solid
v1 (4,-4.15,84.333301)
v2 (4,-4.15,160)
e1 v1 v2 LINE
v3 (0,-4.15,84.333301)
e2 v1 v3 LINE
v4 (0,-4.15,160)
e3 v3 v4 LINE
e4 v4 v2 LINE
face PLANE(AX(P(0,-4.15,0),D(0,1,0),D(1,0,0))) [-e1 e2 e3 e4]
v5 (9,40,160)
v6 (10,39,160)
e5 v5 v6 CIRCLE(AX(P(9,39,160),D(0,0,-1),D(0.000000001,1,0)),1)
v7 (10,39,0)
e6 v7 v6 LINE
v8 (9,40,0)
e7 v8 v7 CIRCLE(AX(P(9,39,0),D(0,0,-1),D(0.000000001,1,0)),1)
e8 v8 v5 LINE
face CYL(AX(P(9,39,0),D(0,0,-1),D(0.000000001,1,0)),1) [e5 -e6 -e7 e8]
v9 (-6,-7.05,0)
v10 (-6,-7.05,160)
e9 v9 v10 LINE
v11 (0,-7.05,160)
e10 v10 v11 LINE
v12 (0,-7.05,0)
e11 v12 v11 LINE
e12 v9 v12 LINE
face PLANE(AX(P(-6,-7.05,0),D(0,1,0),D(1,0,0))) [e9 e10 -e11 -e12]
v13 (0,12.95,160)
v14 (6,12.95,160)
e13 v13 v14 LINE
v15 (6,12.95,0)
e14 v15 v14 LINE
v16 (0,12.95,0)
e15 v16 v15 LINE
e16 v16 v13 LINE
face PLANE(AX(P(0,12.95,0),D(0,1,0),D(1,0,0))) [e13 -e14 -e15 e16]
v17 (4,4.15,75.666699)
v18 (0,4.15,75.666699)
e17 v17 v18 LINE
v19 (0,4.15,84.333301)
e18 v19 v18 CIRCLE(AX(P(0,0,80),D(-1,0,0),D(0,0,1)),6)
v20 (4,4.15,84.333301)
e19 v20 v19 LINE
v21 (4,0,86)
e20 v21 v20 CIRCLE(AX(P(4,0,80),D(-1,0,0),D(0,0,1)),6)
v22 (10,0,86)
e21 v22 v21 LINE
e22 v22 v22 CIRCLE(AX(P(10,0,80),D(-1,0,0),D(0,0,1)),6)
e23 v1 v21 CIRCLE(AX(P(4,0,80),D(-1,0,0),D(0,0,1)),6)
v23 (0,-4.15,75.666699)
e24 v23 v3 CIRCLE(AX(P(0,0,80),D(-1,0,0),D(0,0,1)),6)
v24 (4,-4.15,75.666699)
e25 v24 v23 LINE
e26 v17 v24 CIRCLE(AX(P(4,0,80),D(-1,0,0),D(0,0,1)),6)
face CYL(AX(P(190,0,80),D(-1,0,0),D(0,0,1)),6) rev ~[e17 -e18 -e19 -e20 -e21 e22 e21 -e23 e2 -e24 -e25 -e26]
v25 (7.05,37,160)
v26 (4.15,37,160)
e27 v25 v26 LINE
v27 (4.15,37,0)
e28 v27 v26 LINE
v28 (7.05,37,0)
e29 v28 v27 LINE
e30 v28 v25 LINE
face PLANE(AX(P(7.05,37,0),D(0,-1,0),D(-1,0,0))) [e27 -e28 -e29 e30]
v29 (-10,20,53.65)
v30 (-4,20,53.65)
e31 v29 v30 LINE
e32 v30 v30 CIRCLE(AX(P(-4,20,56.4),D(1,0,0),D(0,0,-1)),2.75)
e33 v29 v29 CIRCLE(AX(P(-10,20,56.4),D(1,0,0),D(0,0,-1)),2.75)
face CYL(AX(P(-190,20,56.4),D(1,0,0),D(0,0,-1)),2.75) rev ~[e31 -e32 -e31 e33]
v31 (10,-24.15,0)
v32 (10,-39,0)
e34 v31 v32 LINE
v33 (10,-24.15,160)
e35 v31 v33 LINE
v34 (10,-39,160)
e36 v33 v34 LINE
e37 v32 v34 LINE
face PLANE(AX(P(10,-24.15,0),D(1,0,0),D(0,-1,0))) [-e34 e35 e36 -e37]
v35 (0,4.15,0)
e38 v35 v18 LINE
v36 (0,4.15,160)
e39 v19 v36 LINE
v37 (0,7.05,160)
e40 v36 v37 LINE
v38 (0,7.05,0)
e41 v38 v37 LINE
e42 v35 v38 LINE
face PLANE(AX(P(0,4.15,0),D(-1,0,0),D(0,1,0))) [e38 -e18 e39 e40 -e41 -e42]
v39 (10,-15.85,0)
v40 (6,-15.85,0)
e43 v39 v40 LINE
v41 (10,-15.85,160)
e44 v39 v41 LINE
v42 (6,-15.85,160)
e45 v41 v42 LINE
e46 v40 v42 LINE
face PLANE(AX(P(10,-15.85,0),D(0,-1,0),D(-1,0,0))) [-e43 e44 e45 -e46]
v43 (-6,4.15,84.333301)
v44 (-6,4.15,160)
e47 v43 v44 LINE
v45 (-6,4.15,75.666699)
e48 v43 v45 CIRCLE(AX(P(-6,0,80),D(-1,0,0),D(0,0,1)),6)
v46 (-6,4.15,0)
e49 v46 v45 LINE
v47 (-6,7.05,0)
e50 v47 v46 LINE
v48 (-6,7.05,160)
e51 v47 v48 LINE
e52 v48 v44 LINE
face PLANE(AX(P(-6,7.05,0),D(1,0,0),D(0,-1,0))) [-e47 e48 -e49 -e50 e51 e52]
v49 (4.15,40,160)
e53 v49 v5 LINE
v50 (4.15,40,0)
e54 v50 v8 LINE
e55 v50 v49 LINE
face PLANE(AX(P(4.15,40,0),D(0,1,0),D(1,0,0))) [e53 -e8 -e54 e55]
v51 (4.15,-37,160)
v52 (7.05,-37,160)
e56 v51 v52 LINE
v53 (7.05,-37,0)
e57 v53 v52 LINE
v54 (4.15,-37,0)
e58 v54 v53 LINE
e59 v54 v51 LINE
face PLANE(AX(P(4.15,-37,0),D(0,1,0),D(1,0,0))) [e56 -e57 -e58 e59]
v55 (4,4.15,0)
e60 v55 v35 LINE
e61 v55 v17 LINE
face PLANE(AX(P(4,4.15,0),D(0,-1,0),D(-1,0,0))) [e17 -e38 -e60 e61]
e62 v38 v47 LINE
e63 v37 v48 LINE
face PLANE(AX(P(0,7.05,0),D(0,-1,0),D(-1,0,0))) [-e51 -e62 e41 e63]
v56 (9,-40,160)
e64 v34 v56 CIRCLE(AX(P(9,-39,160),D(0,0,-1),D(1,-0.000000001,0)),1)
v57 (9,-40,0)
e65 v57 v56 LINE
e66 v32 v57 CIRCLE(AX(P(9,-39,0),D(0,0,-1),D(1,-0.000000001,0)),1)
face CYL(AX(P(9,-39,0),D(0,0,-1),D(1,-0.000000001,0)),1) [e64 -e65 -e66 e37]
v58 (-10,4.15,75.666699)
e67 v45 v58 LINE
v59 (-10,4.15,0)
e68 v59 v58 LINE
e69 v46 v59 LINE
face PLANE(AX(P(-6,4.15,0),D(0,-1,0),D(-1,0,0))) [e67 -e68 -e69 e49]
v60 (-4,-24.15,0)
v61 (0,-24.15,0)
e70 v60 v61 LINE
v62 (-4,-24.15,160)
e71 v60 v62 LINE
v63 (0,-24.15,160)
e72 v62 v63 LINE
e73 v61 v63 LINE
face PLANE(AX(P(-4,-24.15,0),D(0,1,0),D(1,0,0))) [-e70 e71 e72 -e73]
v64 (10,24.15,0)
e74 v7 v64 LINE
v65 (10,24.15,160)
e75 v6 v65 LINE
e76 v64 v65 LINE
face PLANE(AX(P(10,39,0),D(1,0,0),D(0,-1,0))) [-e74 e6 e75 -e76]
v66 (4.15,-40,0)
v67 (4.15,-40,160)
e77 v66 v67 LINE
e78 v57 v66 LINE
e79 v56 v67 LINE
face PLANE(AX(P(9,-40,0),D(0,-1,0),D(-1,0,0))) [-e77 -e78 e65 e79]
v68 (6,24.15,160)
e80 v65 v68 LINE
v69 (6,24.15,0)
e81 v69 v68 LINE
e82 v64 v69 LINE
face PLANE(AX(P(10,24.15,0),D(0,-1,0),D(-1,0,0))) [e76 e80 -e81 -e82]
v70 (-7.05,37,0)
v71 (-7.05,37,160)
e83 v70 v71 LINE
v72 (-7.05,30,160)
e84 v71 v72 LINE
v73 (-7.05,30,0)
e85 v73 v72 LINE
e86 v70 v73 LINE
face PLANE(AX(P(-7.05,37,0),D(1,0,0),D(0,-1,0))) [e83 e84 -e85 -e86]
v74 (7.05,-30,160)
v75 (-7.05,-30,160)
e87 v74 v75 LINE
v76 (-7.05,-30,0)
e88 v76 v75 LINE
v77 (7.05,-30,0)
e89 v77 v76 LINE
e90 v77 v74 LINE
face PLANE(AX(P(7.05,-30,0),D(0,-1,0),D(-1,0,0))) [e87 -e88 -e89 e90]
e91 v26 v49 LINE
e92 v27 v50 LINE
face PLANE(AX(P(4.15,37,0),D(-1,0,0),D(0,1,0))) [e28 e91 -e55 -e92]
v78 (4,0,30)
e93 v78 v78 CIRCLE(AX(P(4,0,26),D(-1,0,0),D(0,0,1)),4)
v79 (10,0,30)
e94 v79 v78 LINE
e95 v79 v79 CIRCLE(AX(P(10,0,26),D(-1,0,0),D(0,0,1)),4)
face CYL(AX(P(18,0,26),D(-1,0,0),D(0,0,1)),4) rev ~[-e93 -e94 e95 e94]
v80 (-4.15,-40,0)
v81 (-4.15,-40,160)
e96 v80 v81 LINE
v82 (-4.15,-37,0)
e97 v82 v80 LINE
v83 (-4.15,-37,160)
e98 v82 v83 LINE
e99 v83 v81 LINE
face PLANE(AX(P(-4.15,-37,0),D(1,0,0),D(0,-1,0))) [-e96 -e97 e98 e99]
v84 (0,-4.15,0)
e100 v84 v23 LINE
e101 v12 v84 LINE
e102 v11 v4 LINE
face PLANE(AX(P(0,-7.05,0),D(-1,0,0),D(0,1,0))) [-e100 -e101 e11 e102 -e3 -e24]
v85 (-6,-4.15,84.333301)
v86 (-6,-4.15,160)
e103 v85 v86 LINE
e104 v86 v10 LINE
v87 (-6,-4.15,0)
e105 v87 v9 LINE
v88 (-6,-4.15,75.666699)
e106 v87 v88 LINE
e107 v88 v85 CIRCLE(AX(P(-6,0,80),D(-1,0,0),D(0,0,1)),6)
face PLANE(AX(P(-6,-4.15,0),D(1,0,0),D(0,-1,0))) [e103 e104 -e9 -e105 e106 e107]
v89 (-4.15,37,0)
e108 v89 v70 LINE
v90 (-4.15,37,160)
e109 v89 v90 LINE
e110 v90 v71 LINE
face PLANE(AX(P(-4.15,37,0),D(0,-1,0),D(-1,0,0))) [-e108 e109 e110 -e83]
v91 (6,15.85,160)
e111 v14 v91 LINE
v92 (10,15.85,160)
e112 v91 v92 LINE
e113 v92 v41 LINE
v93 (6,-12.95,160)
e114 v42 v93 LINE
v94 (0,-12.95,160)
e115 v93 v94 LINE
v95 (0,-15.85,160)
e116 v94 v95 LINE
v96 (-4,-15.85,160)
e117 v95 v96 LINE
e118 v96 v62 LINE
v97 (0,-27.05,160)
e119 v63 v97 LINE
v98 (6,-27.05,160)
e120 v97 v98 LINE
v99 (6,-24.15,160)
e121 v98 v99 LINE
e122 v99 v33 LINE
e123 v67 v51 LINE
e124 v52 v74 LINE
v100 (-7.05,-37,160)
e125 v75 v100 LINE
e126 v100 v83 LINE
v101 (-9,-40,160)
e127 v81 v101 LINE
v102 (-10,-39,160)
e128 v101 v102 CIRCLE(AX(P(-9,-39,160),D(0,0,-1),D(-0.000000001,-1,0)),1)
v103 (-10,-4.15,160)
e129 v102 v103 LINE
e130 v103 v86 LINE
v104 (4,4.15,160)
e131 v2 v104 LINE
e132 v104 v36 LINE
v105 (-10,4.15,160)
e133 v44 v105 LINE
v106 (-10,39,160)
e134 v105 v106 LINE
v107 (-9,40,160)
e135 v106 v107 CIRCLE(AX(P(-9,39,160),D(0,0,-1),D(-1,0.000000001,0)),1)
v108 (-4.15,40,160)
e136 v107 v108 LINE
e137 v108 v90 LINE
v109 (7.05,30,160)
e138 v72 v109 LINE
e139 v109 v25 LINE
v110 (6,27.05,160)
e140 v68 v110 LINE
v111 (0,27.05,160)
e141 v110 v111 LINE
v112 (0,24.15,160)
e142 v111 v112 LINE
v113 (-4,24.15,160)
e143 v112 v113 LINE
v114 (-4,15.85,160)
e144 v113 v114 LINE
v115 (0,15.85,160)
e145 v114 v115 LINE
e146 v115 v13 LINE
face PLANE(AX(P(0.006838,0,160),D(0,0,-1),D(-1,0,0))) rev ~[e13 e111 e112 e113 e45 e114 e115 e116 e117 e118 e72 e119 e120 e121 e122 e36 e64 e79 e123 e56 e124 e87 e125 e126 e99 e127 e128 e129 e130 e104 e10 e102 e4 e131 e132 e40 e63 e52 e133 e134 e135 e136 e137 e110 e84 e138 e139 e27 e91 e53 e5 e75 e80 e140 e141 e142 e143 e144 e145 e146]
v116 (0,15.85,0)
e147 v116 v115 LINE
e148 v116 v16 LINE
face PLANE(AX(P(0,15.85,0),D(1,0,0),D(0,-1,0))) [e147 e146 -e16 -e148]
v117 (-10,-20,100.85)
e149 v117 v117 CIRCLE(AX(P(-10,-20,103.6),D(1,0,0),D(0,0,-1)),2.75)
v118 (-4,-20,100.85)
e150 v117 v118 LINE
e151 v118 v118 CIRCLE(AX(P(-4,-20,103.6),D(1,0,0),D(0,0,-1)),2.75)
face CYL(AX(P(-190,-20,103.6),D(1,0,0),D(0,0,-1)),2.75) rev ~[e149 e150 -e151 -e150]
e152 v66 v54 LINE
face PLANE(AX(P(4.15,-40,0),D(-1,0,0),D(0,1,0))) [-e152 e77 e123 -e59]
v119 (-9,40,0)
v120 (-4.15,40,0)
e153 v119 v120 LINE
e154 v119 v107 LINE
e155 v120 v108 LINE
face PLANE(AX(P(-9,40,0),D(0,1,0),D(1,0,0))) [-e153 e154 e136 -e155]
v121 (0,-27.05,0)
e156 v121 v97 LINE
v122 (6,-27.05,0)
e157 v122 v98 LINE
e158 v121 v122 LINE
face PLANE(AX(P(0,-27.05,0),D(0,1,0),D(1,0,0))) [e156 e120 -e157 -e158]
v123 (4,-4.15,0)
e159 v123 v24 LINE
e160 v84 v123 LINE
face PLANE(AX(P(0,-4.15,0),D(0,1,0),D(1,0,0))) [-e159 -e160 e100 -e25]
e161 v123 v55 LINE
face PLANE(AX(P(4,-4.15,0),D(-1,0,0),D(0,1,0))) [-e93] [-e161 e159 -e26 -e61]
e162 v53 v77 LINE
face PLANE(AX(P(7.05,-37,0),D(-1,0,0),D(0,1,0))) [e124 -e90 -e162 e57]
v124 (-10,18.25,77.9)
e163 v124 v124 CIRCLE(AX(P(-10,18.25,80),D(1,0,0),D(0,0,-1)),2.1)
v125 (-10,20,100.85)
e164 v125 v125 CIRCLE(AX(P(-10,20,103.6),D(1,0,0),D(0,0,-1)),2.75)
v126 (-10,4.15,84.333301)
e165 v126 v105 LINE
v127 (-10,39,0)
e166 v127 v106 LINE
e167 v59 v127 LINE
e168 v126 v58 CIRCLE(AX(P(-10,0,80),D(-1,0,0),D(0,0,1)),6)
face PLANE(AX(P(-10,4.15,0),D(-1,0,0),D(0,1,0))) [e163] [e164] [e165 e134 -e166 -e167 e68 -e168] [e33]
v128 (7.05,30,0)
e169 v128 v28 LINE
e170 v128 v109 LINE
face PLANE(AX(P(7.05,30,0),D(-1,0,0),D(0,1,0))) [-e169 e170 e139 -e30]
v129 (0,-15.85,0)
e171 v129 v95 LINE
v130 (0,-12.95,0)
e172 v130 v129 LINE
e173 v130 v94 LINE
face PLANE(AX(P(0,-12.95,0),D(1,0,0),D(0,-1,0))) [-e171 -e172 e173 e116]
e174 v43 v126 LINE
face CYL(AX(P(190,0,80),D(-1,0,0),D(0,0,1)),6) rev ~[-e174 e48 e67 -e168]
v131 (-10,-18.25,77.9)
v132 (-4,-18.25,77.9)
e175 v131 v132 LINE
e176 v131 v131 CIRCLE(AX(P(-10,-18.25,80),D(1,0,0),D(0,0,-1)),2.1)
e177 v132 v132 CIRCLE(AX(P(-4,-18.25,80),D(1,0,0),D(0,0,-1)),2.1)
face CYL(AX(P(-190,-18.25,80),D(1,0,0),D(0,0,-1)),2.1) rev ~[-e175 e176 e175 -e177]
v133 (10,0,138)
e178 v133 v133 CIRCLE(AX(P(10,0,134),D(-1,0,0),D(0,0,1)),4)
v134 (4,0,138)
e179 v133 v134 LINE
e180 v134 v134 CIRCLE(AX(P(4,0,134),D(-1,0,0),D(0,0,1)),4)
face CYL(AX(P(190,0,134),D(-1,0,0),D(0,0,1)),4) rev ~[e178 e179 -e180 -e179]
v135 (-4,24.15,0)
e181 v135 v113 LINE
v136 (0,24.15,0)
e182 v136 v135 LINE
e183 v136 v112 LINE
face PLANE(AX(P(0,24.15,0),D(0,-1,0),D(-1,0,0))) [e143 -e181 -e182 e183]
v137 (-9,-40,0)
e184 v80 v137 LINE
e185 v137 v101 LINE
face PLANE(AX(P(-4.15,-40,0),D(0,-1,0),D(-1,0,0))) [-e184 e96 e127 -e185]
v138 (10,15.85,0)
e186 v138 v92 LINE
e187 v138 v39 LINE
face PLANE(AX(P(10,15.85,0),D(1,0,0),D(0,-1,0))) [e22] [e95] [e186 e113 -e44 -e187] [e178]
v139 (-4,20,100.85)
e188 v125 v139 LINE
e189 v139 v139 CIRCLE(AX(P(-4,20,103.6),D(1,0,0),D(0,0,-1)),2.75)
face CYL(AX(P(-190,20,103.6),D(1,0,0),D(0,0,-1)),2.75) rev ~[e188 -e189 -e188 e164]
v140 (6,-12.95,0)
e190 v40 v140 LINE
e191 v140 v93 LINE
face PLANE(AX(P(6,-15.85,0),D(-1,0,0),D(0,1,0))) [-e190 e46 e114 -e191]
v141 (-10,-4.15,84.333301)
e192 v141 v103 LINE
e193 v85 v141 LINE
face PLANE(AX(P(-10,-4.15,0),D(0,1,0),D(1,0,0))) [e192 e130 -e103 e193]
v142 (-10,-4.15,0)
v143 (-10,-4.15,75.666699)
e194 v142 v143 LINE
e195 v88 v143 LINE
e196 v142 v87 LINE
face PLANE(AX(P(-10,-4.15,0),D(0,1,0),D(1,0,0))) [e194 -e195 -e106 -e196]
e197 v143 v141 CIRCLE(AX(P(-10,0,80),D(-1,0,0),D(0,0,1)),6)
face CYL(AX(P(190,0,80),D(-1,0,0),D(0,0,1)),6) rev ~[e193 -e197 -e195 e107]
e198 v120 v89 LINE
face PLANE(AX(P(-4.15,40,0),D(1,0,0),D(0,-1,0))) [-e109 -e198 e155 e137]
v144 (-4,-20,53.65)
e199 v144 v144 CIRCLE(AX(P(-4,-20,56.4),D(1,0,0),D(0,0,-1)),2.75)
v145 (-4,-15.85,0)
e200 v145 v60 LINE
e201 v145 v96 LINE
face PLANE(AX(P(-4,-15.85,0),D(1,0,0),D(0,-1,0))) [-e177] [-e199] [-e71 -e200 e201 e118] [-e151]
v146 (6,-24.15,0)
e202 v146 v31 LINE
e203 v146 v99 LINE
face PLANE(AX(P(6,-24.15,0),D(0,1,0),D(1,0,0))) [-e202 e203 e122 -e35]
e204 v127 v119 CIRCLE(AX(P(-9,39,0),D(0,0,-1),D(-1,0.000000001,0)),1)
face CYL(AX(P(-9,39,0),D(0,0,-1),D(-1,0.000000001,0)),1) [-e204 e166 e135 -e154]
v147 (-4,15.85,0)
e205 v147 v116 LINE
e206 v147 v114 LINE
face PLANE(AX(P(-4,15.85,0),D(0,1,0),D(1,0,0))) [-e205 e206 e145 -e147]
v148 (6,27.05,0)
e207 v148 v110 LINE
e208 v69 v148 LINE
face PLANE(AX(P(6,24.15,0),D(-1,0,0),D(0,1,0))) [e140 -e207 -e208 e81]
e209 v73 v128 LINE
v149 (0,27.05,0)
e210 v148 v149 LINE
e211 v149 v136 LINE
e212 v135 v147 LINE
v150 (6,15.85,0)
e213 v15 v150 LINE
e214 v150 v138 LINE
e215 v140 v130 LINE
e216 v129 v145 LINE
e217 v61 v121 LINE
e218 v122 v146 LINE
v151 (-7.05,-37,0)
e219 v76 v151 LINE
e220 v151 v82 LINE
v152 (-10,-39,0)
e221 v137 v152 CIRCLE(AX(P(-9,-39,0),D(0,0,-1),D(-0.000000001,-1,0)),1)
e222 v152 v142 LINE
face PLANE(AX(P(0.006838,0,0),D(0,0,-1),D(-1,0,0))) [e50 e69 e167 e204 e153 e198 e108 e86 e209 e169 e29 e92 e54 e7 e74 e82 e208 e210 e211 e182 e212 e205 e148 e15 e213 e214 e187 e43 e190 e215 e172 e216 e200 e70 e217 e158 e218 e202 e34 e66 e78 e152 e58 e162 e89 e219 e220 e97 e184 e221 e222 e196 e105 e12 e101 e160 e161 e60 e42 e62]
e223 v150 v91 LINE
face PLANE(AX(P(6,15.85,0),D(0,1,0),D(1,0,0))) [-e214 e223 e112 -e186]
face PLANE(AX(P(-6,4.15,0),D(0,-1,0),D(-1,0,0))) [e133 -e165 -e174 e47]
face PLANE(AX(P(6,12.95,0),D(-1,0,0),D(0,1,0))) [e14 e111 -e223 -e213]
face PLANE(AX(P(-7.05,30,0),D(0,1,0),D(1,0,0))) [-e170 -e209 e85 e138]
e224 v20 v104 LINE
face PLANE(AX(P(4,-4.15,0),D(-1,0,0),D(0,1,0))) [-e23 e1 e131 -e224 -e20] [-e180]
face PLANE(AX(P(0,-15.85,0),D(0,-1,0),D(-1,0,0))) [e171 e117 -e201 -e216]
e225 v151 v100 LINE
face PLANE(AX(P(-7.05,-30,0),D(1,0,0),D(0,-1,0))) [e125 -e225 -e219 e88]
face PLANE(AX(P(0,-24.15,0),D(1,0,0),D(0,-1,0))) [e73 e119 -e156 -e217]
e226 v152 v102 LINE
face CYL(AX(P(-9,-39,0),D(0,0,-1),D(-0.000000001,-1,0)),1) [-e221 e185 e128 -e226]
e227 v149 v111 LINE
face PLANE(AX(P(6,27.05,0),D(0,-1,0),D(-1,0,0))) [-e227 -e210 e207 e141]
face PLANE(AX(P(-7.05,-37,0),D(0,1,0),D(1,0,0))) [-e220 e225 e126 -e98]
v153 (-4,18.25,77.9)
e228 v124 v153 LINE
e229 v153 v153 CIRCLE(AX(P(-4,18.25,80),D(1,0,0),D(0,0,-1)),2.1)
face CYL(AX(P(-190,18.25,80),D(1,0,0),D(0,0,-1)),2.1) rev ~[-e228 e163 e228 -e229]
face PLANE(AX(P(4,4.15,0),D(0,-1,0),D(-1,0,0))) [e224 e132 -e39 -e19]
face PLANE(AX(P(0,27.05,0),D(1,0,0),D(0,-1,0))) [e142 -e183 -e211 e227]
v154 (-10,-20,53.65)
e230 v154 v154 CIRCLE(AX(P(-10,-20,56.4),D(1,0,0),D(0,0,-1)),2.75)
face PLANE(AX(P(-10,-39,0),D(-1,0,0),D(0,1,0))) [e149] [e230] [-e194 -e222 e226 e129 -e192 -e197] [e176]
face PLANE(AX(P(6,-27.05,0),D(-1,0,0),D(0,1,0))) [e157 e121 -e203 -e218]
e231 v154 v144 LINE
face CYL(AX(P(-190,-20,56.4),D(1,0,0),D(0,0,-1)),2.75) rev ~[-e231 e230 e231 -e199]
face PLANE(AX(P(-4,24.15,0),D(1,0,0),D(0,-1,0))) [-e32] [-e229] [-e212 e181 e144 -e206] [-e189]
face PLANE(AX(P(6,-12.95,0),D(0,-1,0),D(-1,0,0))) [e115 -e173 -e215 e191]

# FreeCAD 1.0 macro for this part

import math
import FreeCAD as App
import Part
import Sketcher
from FreeCAD import Vector

doc = App.newDocument("Part")
params = doc.addObject("Spreadsheet::Sheet", "Params")
for row, (alias, value) in enumerate([
    ("sketch1_radius", "1 mm"),
    ("sketch1_width", "4 mm"),
    ("sketch1_width2", "6 mm"),
    ("sketch1_height", "3 mm"),
    ("sketch1_height2", "7 mm"),
    ("pad1_length", "160 mm"),
    ("sketch2_diameter", "8 mm"),
    ("hole_diameter", "8 mm"),
    ("sketch3_diameter", "8 mm"),
    ("hole2_diameter", "8 mm"),
    ("hole2_depth", "8 mm"),
    ("sketch4_diameter", "12 mm"),
    ("hole3_diameter", "12 mm"),
    ("sketch5_diameter", "5.5 mm"),
    ("hole4_diameter", "5.5 mm"),
    ("sketch6_diameter", "5.5 mm"),
    ("hole5_diameter", "5.5 mm"),
    ("sketch7_diameter", "5.5 mm"),
    ("hole6_diameter", "5.5 mm"),
    ("sketch8_diameter", "5.5 mm"),
    ("hole7_diameter", "5.5 mm"),
    ("sketch9_diameter", "4.2 mm"),
    ("hole8_diameter", "4.2 mm"),
    ("sketch10_diameter", "4.2 mm"),
    ("hole9_diameter", "4.2 mm"),
], start=1):
    params.set(f"A{row}", alias)
    params.set(f"B{row}", "=" + value)
    params.setAlias(f"B{row}", alias)

body = doc.addObject("PartDesign::Body", "Body")

# Sketch on XY plane
sketch1 = body.newObject("Sketcher::SketchObject", "Sketch")
sketch1.AttachmentSupport = (doc.getObject("XY_Plane"), [""])
sketch1.MapMode = "FlatFace"
sketch1.addGeometry(Part.LineSegment(Vector(-4.2, 40, 0), Vector(-9, 40, 0)), False)
sketch1.addGeometry(Part.ArcOfCircle(Part.Circle(Vector(-9, 39, 0), Vector(0, 0, 1), 1), math.radians(90), math.radians(180)), False)
sketch1.addGeometry(Part.LineSegment(Vector(-10, 39, 0), Vector(-10, 4.2, 0)), False)
sketch1.addGeometry(Part.LineSegment(Vector(-10, 4.2, 0), Vector(-6, 4.2, 0)), False)
sketch1.addGeometry(Part.LineSegment(Vector(-6, 4.2, 0), Vector(-6, 7, 0)), False)
sketch1.addGeometry(Part.LineSegment(Vector(-6, 7, 0), Vector(0, 7, 0)), False)
sketch1.addGeometry(Part.LineSegment(Vector(0, 7, 0), Vector(0, 4.2, 0)), False)
sketch1.addGeometry(Part.LineSegment(Vector(0, 4.2, 0), Vector(4, 4.2, 0)), False)
sketch1.addGeometry(Part.LineSegment(Vector(4, 4.2, 0), Vector(4, -4.2, 0)), False)
sketch1.addGeometry(Part.LineSegment(Vector(4, -4.2, 0), Vector(0, -4.2, 0)), False)
sketch1.addGeometry(Part.LineSegment(Vector(0, -4.2, 0), Vector(0, -7, 0)), False)
sketch1.addGeometry(Part.LineSegment(Vector(0, -7, 0), Vector(-6, -7, 0)), False)
sketch1.addGeometry(Part.LineSegment(Vector(-6, -7, 0), Vector(-6, -4.2, 0)), False)
sketch1.addGeometry(Part.LineSegment(Vector(-6, -4.2, 0), Vector(-10, -4.2, 0)), False)
sketch1.addGeometry(Part.LineSegment(Vector(-10, -4.2, 0), Vector(-10, -39, 0)), False)
sketch1.addGeometry(Part.ArcOfCircle(Part.Circle(Vector(-9, -39, 0), Vector(0, 0, 1), 1), math.radians(-180), math.radians(-90)), False)
sketch1.addGeometry(Part.LineSegment(Vector(-9, -40, 0), Vector(-4.2, -40, 0)), False)
sketch1.addGeometry(Part.LineSegment(Vector(-4.2, -40, 0), Vector(-4.2, -37, 0)), False)
sketch1.addGeometry(Part.LineSegment(Vector(-4.2, -37, 0), Vector(-7, -37, 0)), False)
sketch1.addGeometry(Part.LineSegment(Vector(-7, -37, 0), Vector(-7, -30, 0)), False)
sketch1.addGeometry(Part.LineSegment(Vector(-7, -30, 0), Vector(7, -30, 0)), False)
sketch1.addGeometry(Part.LineSegment(Vector(7, -30, 0), Vector(7, -37, 0)), False)
sketch1.addGeometry(Part.LineSegment(Vector(7, -37, 0), Vector(4.2, -37, 0)), False)
sketch1.addGeometry(Part.LineSegment(Vector(4.2, -37, 0), Vector(4.2, -40, 0)), False)
sketch1.addGeometry(Part.LineSegment(Vector(4.2, -40, 0), Vector(9, -40, 0)), False)
sketch1.addGeometry(Part.ArcOfCircle(Part.Circle(Vector(9, -39, 0), Vector(0, 0, 1), 1), math.radians(-90), math.radians(0)), False)
sketch1.addGeometry(Part.LineSegment(Vector(10, -39, 0), Vector(10, -24.1, 0)), False)
sketch1.addGeometry(Part.LineSegment(Vector(10, -24.1, 0), Vector(6, -24.1, 0)), False)
sketch1.addGeometry(Part.LineSegment(Vector(6, -24.1, 0), Vector(6, -27.1, 0)), False)
sketch1.addGeometry(Part.LineSegment(Vector(6, -27.1, 0), Vector(0, -27.1, 0)), False)
sketch1.addGeometry(Part.LineSegment(Vector(0, -27.1, 0), Vector(0, -24.1, 0)), False)
sketch1.addGeometry(Part.LineSegment(Vector(0, -24.1, 0), Vector(-4, -24.1, 0)), False)
sketch1.addGeometry(Part.LineSegment(Vector(-4, -24.1, 0), Vector(-4, -15.8, 0)), False)
sketch1.addGeometry(Part.LineSegment(Vector(-4, -15.8, 0), Vector(0, -15.8, 0)), False)
sketch1.addGeometry(Part.LineSegment(Vector(0, -15.8, 0), Vector(0, -12.9, 0)), False)
sketch1.addGeometry(Part.LineSegment(Vector(0, -12.9, 0), Vector(6, -12.9, 0)), False)
sketch1.addGeometry(Part.LineSegment(Vector(6, -12.9, 0), Vector(6, -15.8, 0)), False)
sketch1.addGeometry(Part.LineSegment(Vector(6, -15.8, 0), Vector(10, -15.8, 0)), False)
sketch1.addGeometry(Part.LineSegment(Vector(10, -15.8, 0), Vector(10, 15.8, 0)), False)
sketch1.addGeometry(Part.LineSegment(Vector(10, 15.8, 0), Vector(6, 15.8, 0)), False)
sketch1.addGeometry(Part.LineSegment(Vector(6, 15.8, 0), Vector(6, 12.9, 0)), False)
sketch1.addGeometry(Part.LineSegment(Vector(6, 12.9, 0), Vector(0, 12.9, 0)), False)
sketch1.addGeometry(Part.LineSegment(Vector(0, 12.9, 0), Vector(0, 15.8, 0)), False)
sketch1.addGeometry(Part.LineSegment(Vector(0, 15.8, 0), Vector(-4, 15.8, 0)), False)
sketch1.addGeometry(Part.LineSegment(Vector(-4, 15.8, 0), Vector(-4, 24.1, 0)), False)
sketch1.addGeometry(Part.LineSegment(Vector(-4, 24.1, 0), Vector(0, 24.1, 0)), False)
sketch1.addGeometry(Part.LineSegment(Vector(0, 24.1, 0), Vector(0, 27.1, 0)), False)
sketch1.addGeometry(Part.LineSegment(Vector(0, 27.1, 0), Vector(6, 27.1, 0)), False)
sketch1.addGeometry(Part.LineSegment(Vector(6, 27.1, 0), Vector(6, 24.1, 0)), False)
sketch1.addGeometry(Part.LineSegment(Vector(6, 24.1, 0), Vector(10, 24.1, 0)), False)
sketch1.addGeometry(Part.LineSegment(Vector(10, 24.1, 0), Vector(10, 39, 0)), False)
sketch1.addGeometry(Part.ArcOfCircle(Part.Circle(Vector(9, 39, 0), Vector(0, 0, 1), 1), math.radians(0), math.radians(90)), False)
sketch1.addGeometry(Part.LineSegment(Vector(9, 40, 0), Vector(4.2, 40, 0)), False)
sketch1.addGeometry(Part.LineSegment(Vector(4.2, 40, 0), Vector(4.2, 37, 0)), False)
sketch1.addGeometry(Part.LineSegment(Vector(4.2, 37, 0), Vector(7, 37, 0)), False)
sketch1.addGeometry(Part.LineSegment(Vector(7, 37, 0), Vector(7, 30, 0)), False)
sketch1.addGeometry(Part.LineSegment(Vector(7, 30, 0), Vector(-7, 30, 0)), False)
sketch1.addGeometry(Part.LineSegment(Vector(-7, 30, 0), Vector(-7, 37, 0)), False)
sketch1.addGeometry(Part.LineSegment(Vector(-7, 37, 0), Vector(-4.2, 37, 0)), False)
sketch1.addGeometry(Part.LineSegment(Vector(-4.2, 37, 0), Vector(-4.2, 40, 0)), False)
sketch1.addConstraint(Sketcher.Constraint("Tangent", 0, 2, 1, 1))
sketch1.addConstraint(Sketcher.Constraint("Tangent", 1, 2, 2, 1))
sketch1.addConstraint(Sketcher.Constraint("Coincident", 2, 2, 3, 1))
sketch1.addConstraint(Sketcher.Constraint("Coincident", 3, 2, 4, 1))
sketch1.addConstraint(Sketcher.Constraint("Coincident", 4, 2, 5, 1))
sketch1.addConstraint(Sketcher.Constraint("Coincident", 5, 2, 6, 1))
sketch1.addConstraint(Sketcher.Constraint("Coincident", 6, 2, 7, 1))
sketch1.addConstraint(Sketcher.Constraint("Coincident", 7, 2, 8, 1))
sketch1.addConstraint(Sketcher.Constraint("Coincident", 8, 2, 9, 1))
sketch1.addConstraint(Sketcher.Constraint("Coincident", 9, 2, 10, 1))
sketch1.addConstraint(Sketcher.Constraint("Coincident", 10, 2, 11, 1))
sketch1.addConstraint(Sketcher.Constraint("Coincident", 11, 2, 12, 1))
sketch1.addConstraint(Sketcher.Constraint("Coincident", 12, 2, 13, 1))
sketch1.addConstraint(Sketcher.Constraint("Coincident", 13, 2, 14, 1))
sketch1.addConstraint(Sketcher.Constraint("Tangent", 14, 2, 15, 1))
sketch1.addConstraint(Sketcher.Constraint("Tangent", 15, 2, 16, 1))
sketch1.addConstraint(Sketcher.Constraint("Coincident", 16, 2, 17, 1))
sketch1.addConstraint(Sketcher.Constraint("Coincident", 17, 2, 18, 1))
sketch1.addConstraint(Sketcher.Constraint("Coincident", 18, 2, 19, 1))
sketch1.addConstraint(Sketcher.Constraint("Coincident", 19, 2, 20, 1))
sketch1.addConstraint(Sketcher.Constraint("Coincident", 20, 2, 21, 1))
sketch1.addConstraint(Sketcher.Constraint("Coincident", 21, 2, 22, 1))
sketch1.addConstraint(Sketcher.Constraint("Coincident", 22, 2, 23, 1))
sketch1.addConstraint(Sketcher.Constraint("Coincident", 23, 2, 24, 1))
sketch1.addConstraint(Sketcher.Constraint("Tangent", 24, 2, 25, 1))
sketch1.addConstraint(Sketcher.Constraint("Tangent", 25, 2, 26, 1))
sketch1.addConstraint(Sketcher.Constraint("Coincident", 26, 2, 27, 1))
sketch1.addConstraint(Sketcher.Constraint("Coincident", 27, 2, 28, 1))
sketch1.addConstraint(Sketcher.Constraint("Coincident", 28, 2, 29, 1))
sketch1.addConstraint(Sketcher.Constraint("Coincident", 29, 2, 30, 1))
sketch1.addConstraint(Sketcher.Constraint("Coincident", 30, 2, 31, 1))
sketch1.addConstraint(Sketcher.Constraint("Coincident", 31, 2, 32, 1))
sketch1.addConstraint(Sketcher.Constraint("Coincident", 32, 2, 33, 1))
sketch1.addConstraint(Sketcher.Constraint("Coincident", 33, 2, 34, 1))
sketch1.addConstraint(Sketcher.Constraint("Coincident", 34, 2, 35, 1))
sketch1.addConstraint(Sketcher.Constraint("Coincident", 35, 2, 36, 1))
sketch1.addConstraint(Sketcher.Constraint("Coincident", 36, 2, 37, 1))
sketch1.addConstraint(Sketcher.Constraint("Coincident", 37, 2, 38, 1))
sketch1.addConstraint(Sketcher.Constraint("Coincident", 38, 2, 39, 1))
sketch1.addConstraint(Sketcher.Constraint("Coincident", 39, 2, 40, 1))
sketch1.addConstraint(Sketcher.Constraint("Coincident", 40, 2, 41, 1))
sketch1.addConstraint(Sketcher.Constraint("Coincident", 41, 2, 42, 1))
sketch1.addConstraint(Sketcher.Constraint("Coincident", 42, 2, 43, 1))
sketch1.addConstraint(Sketcher.Constraint("Coincident", 43, 2, 44, 1))
sketch1.addConstraint(Sketcher.Constraint("Coincident", 44, 2, 45, 1))
sketch1.addConstraint(Sketcher.Constraint("Coincident", 45, 2, 46, 1))
sketch1.addConstraint(Sketcher.Constraint("Coincident", 46, 2, 47, 1))
sketch1.addConstraint(Sketcher.Constraint("Coincident", 47, 2, 48, 1))
sketch1.addConstraint(Sketcher.Constraint("Coincident", 48, 2, 49, 1))
sketch1.addConstraint(Sketcher.Constraint("Coincident", 49, 2, 50, 1))
sketch1.addConstraint(Sketcher.Constraint("Tangent", 50, 2, 51, 1))
sketch1.addConstraint(Sketcher.Constraint("Tangent", 51, 2, 52, 1))
sketch1.addConstraint(Sketcher.Constraint("Coincident", 52, 2, 53, 1))
sketch1.addConstraint(Sketcher.Constraint("Coincident", 53, 2, 54, 1))
sketch1.addConstraint(Sketcher.Constraint("Coincident", 54, 2, 55, 1))
sketch1.addConstraint(Sketcher.Constraint("Coincident", 55, 2, 56, 1))
sketch1.addConstraint(Sketcher.Constraint("Coincident", 56, 2, 57, 1))
sketch1.addConstraint(Sketcher.Constraint("Coincident", 57, 2, 58, 1))
sketch1.addConstraint(Sketcher.Constraint("Coincident", 58, 2, 59, 1))
sketch1.addConstraint(Sketcher.Constraint("Coincident", 59, 2, 0, 1))
sketch1.addConstraint(Sketcher.Constraint("Horizontal", 0))
sketch1.addConstraint(Sketcher.Constraint("Vertical", 2))
sketch1.addConstraint(Sketcher.Constraint("Horizontal", 3))
sketch1.addConstraint(Sketcher.Constraint("Vertical", 4))
sketch1.addConstraint(Sketcher.Constraint("Horizontal", 5))
sketch1.addConstraint(Sketcher.Constraint("Vertical", 6))
sketch1.addConstraint(Sketcher.Constraint("Horizontal", 7))
sketch1.addConstraint(Sketcher.Constraint("Vertical", 8))
sketch1.addConstraint(Sketcher.Constraint("Horizontal", 9))
sketch1.addConstraint(Sketcher.Constraint("Vertical", 10))
sketch1.addConstraint(Sketcher.Constraint("Horizontal", 11))
sketch1.addConstraint(Sketcher.Constraint("Vertical", 12))
sketch1.addConstraint(Sketcher.Constraint("Horizontal", 13))
sketch1.addConstraint(Sketcher.Constraint("Vertical", 14))
sketch1.addConstraint(Sketcher.Constraint("Horizontal", 16))
sketch1.addConstraint(Sketcher.Constraint("Vertical", 17))
sketch1.addConstraint(Sketcher.Constraint("Horizontal", 18))
sketch1.addConstraint(Sketcher.Constraint("Vertical", 19))
sketch1.addConstraint(Sketcher.Constraint("Horizontal", 20))
sketch1.addConstraint(Sketcher.Constraint("Vertical", 21))
sketch1.addConstraint(Sketcher.Constraint("Horizontal", 22))
sketch1.addConstraint(Sketcher.Constraint("Vertical", 23))
sketch1.addConstraint(Sketcher.Constraint("Horizontal", 24))
sketch1.addConstraint(Sketcher.Constraint("Vertical", 26))
sketch1.addConstraint(Sketcher.Constraint("Horizontal", 27))
sketch1.addConstraint(Sketcher.Constraint("Vertical", 28))
sketch1.addConstraint(Sketcher.Constraint("Horizontal", 29))
sketch1.addConstraint(Sketcher.Constraint("Vertical", 30))
sketch1.addConstraint(Sketcher.Constraint("Horizontal", 31))
sketch1.addConstraint(Sketcher.Constraint("Vertical", 32))
sketch1.addConstraint(Sketcher.Constraint("Horizontal", 33))
sketch1.addConstraint(Sketcher.Constraint("Vertical", 34))
sketch1.addConstraint(Sketcher.Constraint("Horizontal", 35))
sketch1.addConstraint(Sketcher.Constraint("Vertical", 36))
sketch1.addConstraint(Sketcher.Constraint("Horizontal", 37))
sketch1.addConstraint(Sketcher.Constraint("Vertical", 38))
sketch1.addConstraint(Sketcher.Constraint("Horizontal", 39))
sketch1.addConstraint(Sketcher.Constraint("Vertical", 40))
sketch1.addConstraint(Sketcher.Constraint("Horizontal", 41))
sketch1.addConstraint(Sketcher.Constraint("Vertical", 42))
sketch1.addConstraint(Sketcher.Constraint("Horizontal", 43))
sketch1.addConstraint(Sketcher.Constraint("Vertical", 44))
sketch1.addConstraint(Sketcher.Constraint("Horizontal", 45))
sketch1.addConstraint(Sketcher.Constraint("Vertical", 46))
sketch1.addConstraint(Sketcher.Constraint("Horizontal", 47))
sketch1.addConstraint(Sketcher.Constraint("Vertical", 48))
sketch1.addConstraint(Sketcher.Constraint("Horizontal", 49))
sketch1.addConstraint(Sketcher.Constraint("Vertical", 50))
sketch1.addConstraint(Sketcher.Constraint("Horizontal", 52))
sketch1.addConstraint(Sketcher.Constraint("Vertical", 53))
sketch1.addConstraint(Sketcher.Constraint("Horizontal", 54))
sketch1.addConstraint(Sketcher.Constraint("Vertical", 55))
sketch1.addConstraint(Sketcher.Constraint("Horizontal", 56))
sketch1.addConstraint(Sketcher.Constraint("Vertical", 57))
sketch1.addConstraint(Sketcher.Constraint("Horizontal", 58))
sketch1.addConstraint(Sketcher.Constraint("Vertical", 59))
sketch1.addConstraint(Sketcher.Constraint("Equal", 1, 15))
sketch1.addConstraint(Sketcher.Constraint("Equal", 15, 25))
sketch1.addConstraint(Sketcher.Constraint("Equal", 25, 51))
sketch1.addConstraint(Sketcher.Constraint("Symmetric", 1, 3, 25, 3, -1, 1))
sketch1.addConstraint(Sketcher.Constraint("Symmetric", 15, 3, 51, 3, -1, 1))
sketch1.addConstraint(Sketcher.Constraint("Symmetric", 6, 2, 9, 2, -1, 1))
sketch1.addConstraint(Sketcher.Constraint("Symmetric", 34, 2, 41, 2, -1, 1))
sketch1.addConstraint(Sketcher.Constraint("Symmetric", 30, 2, 45, 2, -1, 1))
sketch1.addConstraint(Sketcher.Constraint("Symmetric", 17, 2, 53, 2, -1, 1))
sketch1.addConstraint(Sketcher.Constraint("Symmetric", 19, 2, 55, 2, -1, 1))
sketch1.addConstraint(Sketcher.Constraint("Symmetric", 21, 2, 57, 2, -1, 1))
sketch1.addConstraint(Sketcher.Constraint("Symmetric", 15, 3, 25, 3, -2))
sketch1.addConstraint(Sketcher.Constraint("Symmetric", 18, 2, 21, 2, -2))
sketch1.addConstraint(Sketcher.Constraint("Symmetric", 5, 2, 10, 2, -1))
sketch1.addConstraint(Sketcher.Constraint("Symmetric", 3, 2, 12, 2, -1))
sketch1.addConstraint(Sketcher.Constraint("Symmetric", 36, 2, 39, 2, -1))
sketch1.addConstraint(Sketcher.Constraint("Symmetric", 33, 2, 42, 2, -1))
sketch1.addConstraint(Sketcher.Constraint("Symmetric", 29, 2, 46, 2, -1))
sketch1.addConstraint(Sketcher.Constraint("Symmetric", 27, 2, 48, 2, -1))
sketch1.addConstraint(Sketcher.Constraint("Horizontal", 3, 2, 6, 2))
sketch1.addConstraint(Sketcher.Constraint("Horizontal", 27, 2, 30, 2))
sketch1.addConstraint(Sketcher.Constraint("Horizontal", 33, 2, 36, 2))
sketch1.addConstraint(Sketcher.Constraint("Vertical", 28, 2, 35, 2))
sketch1.addConstraint(Sketcher.Constraint("Vertical", 26, 2, 37, 2))
sketch1.addConstraint(Sketcher.Constraint("Vertical", 32, 2, 43, 2))
sketch1.addConstraint(Sketcher.Constraint("Vertical", 23, 2, 52, 2))
sketch1.addConstraint(Sketcher.Constraint("Vertical", 17, 2, 58, 2))
sketch1.addConstraint(Sketcher.Constraint("Equal", 3, 7))
sketch1.addConstraint(Sketcher.Constraint("Equal", 13, 27))
sketch1.addConstraint(Sketcher.Constraint("Equal", 27, 31))
sketch1.addConstraint(Sketcher.Constraint("Equal", 58, 4))
sketch1.addConstraint(Sketcher.Constraint("Equal", 12, 28))
sketch1.addConstraint(Sketcher.Constraint("Equal", 8, 32))
sketch1.addConstraint(Sketcher.Constraint("Equal", 30, 34))
sketch1.addConstraint(Sketcher.Constraint("Radius", 1, 1.0))
sketch1.addConstraint(Sketcher.Constraint("DistanceX", 3, 1, 3, 2, 4.0))
sketch1.addConstraint(Sketcher.Constraint("DistanceX", 5, 1, 5, 2, 6.0))
sketch1.addConstraint(Sketcher.Constraint("DistanceY", 17, 1, 17, 2, 3.0))
sketch1.addConstraint(Sketcher.Constraint("DistanceY", 19, 1, 19, 2, 7.0))
sketch1.addConstraint(Sketcher.Constraint("DistanceX", 18, 2, 18, 1, 2.9))
sketch1.addConstraint(Sketcher.Constraint("DistanceX", 20, 1, 20, 2, 14.1))
sketch1.addConstraint(Sketcher.Constraint("DistanceY", 8, 2, 8, 1, 8.3))
sketch1.addConstraint(Sketcher.Constraint("DistanceY", 38, 1, 38, 2, 31.7))
sketch1.addConstraint(Sketcher.Constraint("DistanceY", -1, 1, 1, 3, 39.0))
sketch1.setExpression("Constraints[150]", "Params.sketch1_radius")
sketch1.setExpression("Constraints[151]", "Params.sketch1_width")
sketch1.setExpression("Constraints[152]", "Params.sketch1_width2")
sketch1.setExpression("Constraints[153]", "Params.sketch1_height")
sketch1.setExpression("Constraints[154]", "Params.sketch1_height2")
pad1 = body.newObject("PartDesign::Pad", "Pad")
pad1.Profile = sketch1
pad1.setExpression("Length", "Params.pad1_length")

# Sketch on YZ plane
sketch2 = body.newObject("Sketcher::SketchObject", "Sketch001")
sketch2.AttachmentSupport = (doc.getObject("YZ_Plane"), [""])
sketch2.MapMode = "FlatFace"
sketch2.AttachmentOffset = App.Placement(Vector(0, 0, 10), App.Rotation())
sketch2.addGeometry(Part.Circle(Vector(0, 134, 0), Vector(0, 0, 1), 4), False)
sketch2.addConstraint(Sketcher.Constraint("PointOnObject", 0, 3, -2))
sketch2.addConstraint(Sketcher.Constraint("Diameter", 0, 8.0))
sketch2.addConstraint(Sketcher.Constraint("DistanceY", -1, 1, 0, 3, 134.0))
sketch2.setExpression("Constraints[1]", "Params.sketch2_diameter")
doc.recompute()
hole = body.newObject("PartDesign::Hole", "Hole")
hole.Profile = sketch2
hole.ThreadType = "None"
hole.setExpression("Diameter", "Params.hole_diameter")
hole.DepthType = "ThroughAll"

# Sketch on YZ plane
sketch3 = body.newObject("Sketcher::SketchObject", "Sketch002")
sketch3.AttachmentSupport = (doc.getObject("YZ_Plane"), [""])
sketch3.MapMode = "FlatFace"
sketch3.AttachmentOffset = App.Placement(Vector(0, 0, 10), App.Rotation())
sketch3.addGeometry(Part.Circle(Vector(0, 26, 0), Vector(0, 0, 1), 4), False)
sketch3.addConstraint(Sketcher.Constraint("PointOnObject", 0, 3, -2))
sketch3.addConstraint(Sketcher.Constraint("Diameter", 0, 8.0))
sketch3.addConstraint(Sketcher.Constraint("DistanceY", -1, 1, 0, 3, 26.0))
sketch3.setExpression("Constraints[1]", "Params.sketch3_diameter")
doc.recompute()
hole2 = body.newObject("PartDesign::Hole", "Hole001")
hole2.Profile = sketch3
hole2.ThreadType = "None"
hole2.setExpression("Diameter", "Params.hole2_diameter")
hole2.DepthType = "Dimension"
hole2.setExpression("Depth", "Params.hole2_depth")
hole2.DrillPoint = "Angled"
hole2.DrillPointAngle = 118

# Sketch on YZ plane
sketch4 = body.newObject("Sketcher::SketchObject", "Sketch003")
sketch4.AttachmentSupport = (doc.getObject("YZ_Plane"), [""])
sketch4.MapMode = "FlatFace"
sketch4.AttachmentOffset = App.Placement(Vector(0, 0, 10), App.Rotation())
sketch4.addGeometry(Part.Circle(Vector(0, 80, 0), Vector(0, 0, 1), 6), False)
sketch4.addConstraint(Sketcher.Constraint("PointOnObject", 0, 3, -2))
sketch4.addConstraint(Sketcher.Constraint("Diameter", 0, 12.0))
sketch4.addConstraint(Sketcher.Constraint("DistanceY", -1, 1, 0, 3, 80.0))
sketch4.setExpression("Constraints[1]", "Params.sketch4_diameter")
doc.recompute()
hole3 = body.newObject("PartDesign::Hole", "Hole002")
hole3.Profile = sketch4
hole3.ThreadType = "None"
hole3.setExpression("Diameter", "Params.hole3_diameter")
hole3.DepthType = "ThroughAll"

# Sketch on YZ plane
sketch5 = body.newObject("Sketcher::SketchObject", "Sketch004")
sketch5.AttachmentSupport = (doc.getObject("YZ_Plane"), [""])
sketch5.MapMode = "FlatFace"
sketch5.AttachmentOffset = App.Placement(Vector(0, 0, -10), App.Rotation())
sketch5.addGeometry(Part.Circle(Vector(-20, 103.6, 0), Vector(0, 0, 1), 2.8), False)
sketch5.addConstraint(Sketcher.Constraint("Diameter", 0, 5.5))
sketch5.addConstraint(Sketcher.Constraint("DistanceX", 0, 3, -1, 1, 20.0))
sketch5.addConstraint(Sketcher.Constraint("DistanceY", -1, 1, 0, 3, 103.6))
sketch5.setExpression("Constraints[0]", "Params.sketch5_diameter")
doc.recompute()
hole4 = body.newObject("PartDesign::Hole", "Hole003")
hole4.Profile = sketch5
hole4.ThreadType = "None"
hole4.setExpression("Diameter", "Params.hole4_diameter")
hole4.DepthType = "ThroughAll"
hole4.Reversed = True

# Sketch on YZ plane
sketch6 = body.newObject("Sketcher::SketchObject", "Sketch005")
sketch6.AttachmentSupport = (doc.getObject("YZ_Plane"), [""])
sketch6.MapMode = "FlatFace"
sketch6.AttachmentOffset = App.Placement(Vector(0, 0, -10), App.Rotation())
sketch6.addGeometry(Part.Circle(Vector(-20, 56.4, 0), Vector(0, 0, 1), 2.8), False)
sketch6.addConstraint(Sketcher.Constraint("Diameter", 0, 5.5))
sketch6.addConstraint(Sketcher.Constraint("DistanceX", 0, 3, -1, 1, 20.0))
sketch6.addConstraint(Sketcher.Constraint("DistanceY", -1, 1, 0, 3, 56.4))
sketch6.setExpression("Constraints[0]", "Params.sketch6_diameter")
doc.recompute()
hole5 = body.newObject("PartDesign::Hole", "Hole004")
hole5.Profile = sketch6
hole5.ThreadType = "None"
hole5.setExpression("Diameter", "Params.hole5_diameter")
hole5.DepthType = "ThroughAll"
hole5.Reversed = True

# Sketch on YZ plane
sketch7 = body.newObject("Sketcher::SketchObject", "Sketch006")
sketch7.AttachmentSupport = (doc.getObject("YZ_Plane"), [""])
sketch7.MapMode = "FlatFace"
sketch7.AttachmentOffset = App.Placement(Vector(0, 0, -10), App.Rotation())
sketch7.addGeometry(Part.Circle(Vector(20, 103.6, 0), Vector(0, 0, 1), 2.8), False)
sketch7.addConstraint(Sketcher.Constraint("Diameter", 0, 5.5))
sketch7.addConstraint(Sketcher.Constraint("DistanceX", -1, 1, 0, 3, 20.0))
sketch7.addConstraint(Sketcher.Constraint("DistanceY", -1, 1, 0, 3, 103.6))
sketch7.setExpression("Constraints[0]", "Params.sketch7_diameter")
doc.recompute()
hole6 = body.newObject("PartDesign::Hole", "Hole005")
hole6.Profile = sketch7
hole6.ThreadType = "None"
hole6.setExpression("Diameter", "Params.hole6_diameter")
hole6.DepthType = "ThroughAll"
hole6.Reversed = True

# Sketch on YZ plane
sketch8 = body.newObject("Sketcher::SketchObject", "Sketch007")
sketch8.AttachmentSupport = (doc.getObject("YZ_Plane"), [""])
sketch8.MapMode = "FlatFace"
sketch8.AttachmentOffset = App.Placement(Vector(0, 0, -10), App.Rotation())
sketch8.addGeometry(Part.Circle(Vector(20, 56.4, 0), Vector(0, 0, 1), 2.8), False)
sketch8.addConstraint(Sketcher.Constraint("Diameter", 0, 5.5))
sketch8.addConstraint(Sketcher.Constraint("DistanceX", -1, 1, 0, 3, 20.0))
sketch8.addConstraint(Sketcher.Constraint("DistanceY", -1, 1, 0, 3, 56.4))
sketch8.setExpression("Constraints[0]", "Params.sketch8_diameter")
doc.recompute()
hole7 = body.newObject("PartDesign::Hole", "Hole006")
hole7.Profile = sketch8
hole7.ThreadType = "None"
hole7.setExpression("Diameter", "Params.hole7_diameter")
hole7.DepthType = "ThroughAll"
hole7.Reversed = True

# Sketch on YZ plane
sketch9 = body.newObject("Sketcher::SketchObject", "Sketch008")
sketch9.AttachmentSupport = (doc.getObject("YZ_Plane"), [""])
sketch9.MapMode = "FlatFace"
sketch9.AttachmentOffset = App.Placement(Vector(0, 0, -10), App.Rotation())
sketch9.addGeometry(Part.Circle(Vector(-18.2, 80, 0), Vector(0, 0, 1), 2.1), False)
sketch9.addConstraint(Sketcher.Constraint("Diameter", 0, 4.2))
sketch9.addConstraint(Sketcher.Constraint("DistanceY", -1, 1, 0, 3, 80.0))
sketch9.addConstraint(Sketcher.Constraint("DistanceX", 0, 3, -1, 1, 18.25))
sketch9.setExpression("Constraints[0]", "Params.sketch9_diameter")
doc.recompute()
hole8 = body.newObject("PartDesign::Hole", "Hole007")
hole8.Profile = sketch9
hole8.ThreadType = "None"
hole8.setExpression("Diameter", "Params.hole8_diameter")
hole8.DepthType = "ThroughAll"
hole8.Reversed = True

# Sketch on YZ plane
sketch10 = body.newObject("Sketcher::SketchObject", "Sketch009")
sketch10.AttachmentSupport = (doc.getObject("YZ_Plane"), [""])
sketch10.MapMode = "FlatFace"
sketch10.AttachmentOffset = App.Placement(Vector(0, 0, -10), App.Rotation())
sketch10.addGeometry(Part.Circle(Vector(18.2, 80, 0), Vector(0, 0, 1), 2.1), False)
sketch10.addConstraint(Sketcher.Constraint("Diameter", 0, 4.2))
sketch10.addConstraint(Sketcher.Constraint("DistanceY", -1, 1, 0, 3, 80.0))
sketch10.addConstraint(Sketcher.Constraint("DistanceX", -1, 1, 0, 3, 18.25))
sketch10.setExpression("Constraints[0]", "Params.sketch10_diameter")
doc.recompute()
hole9 = body.newObject("PartDesign::Hole", "Hole008")
hole9.Profile = sketch10
hole9.ThreadType = "None"
hole9.setExpression("Diameter", "Params.hole9_diameter")
hole9.DepthType = "ThroughAll"
hole9.Reversed = True

doc.recompute()
